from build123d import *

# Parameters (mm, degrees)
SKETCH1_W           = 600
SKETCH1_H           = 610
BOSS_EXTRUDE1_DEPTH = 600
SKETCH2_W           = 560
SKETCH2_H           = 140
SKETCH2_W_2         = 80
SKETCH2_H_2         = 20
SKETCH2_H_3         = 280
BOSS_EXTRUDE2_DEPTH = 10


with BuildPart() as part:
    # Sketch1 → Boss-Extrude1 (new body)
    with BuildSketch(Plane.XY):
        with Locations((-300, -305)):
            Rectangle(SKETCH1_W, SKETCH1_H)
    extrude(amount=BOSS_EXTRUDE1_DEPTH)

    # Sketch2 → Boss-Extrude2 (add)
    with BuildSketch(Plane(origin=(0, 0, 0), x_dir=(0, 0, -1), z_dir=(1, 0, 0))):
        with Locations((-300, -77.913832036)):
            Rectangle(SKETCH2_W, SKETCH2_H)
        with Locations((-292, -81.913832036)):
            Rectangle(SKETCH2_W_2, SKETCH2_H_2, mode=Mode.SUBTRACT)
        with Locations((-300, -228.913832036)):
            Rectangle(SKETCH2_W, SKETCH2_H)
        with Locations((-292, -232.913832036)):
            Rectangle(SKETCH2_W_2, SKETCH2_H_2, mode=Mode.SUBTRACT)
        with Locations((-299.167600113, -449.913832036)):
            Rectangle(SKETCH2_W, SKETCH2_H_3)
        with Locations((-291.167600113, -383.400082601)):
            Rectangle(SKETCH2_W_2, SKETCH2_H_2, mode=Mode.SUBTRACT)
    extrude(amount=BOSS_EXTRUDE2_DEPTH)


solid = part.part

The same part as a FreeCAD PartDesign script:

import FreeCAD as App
import Part
import Sketcher
from FreeCAD import Vector


def add_polygon(sketch, points):
    """Adds a closed chain of lines whose ends are joined by coincident constraints."""
    first, n = sketch.GeometryCount, len(points)
    for a, b in zip(points, points[1:] + points[:1]):
        sketch.addGeometry(Part.LineSegment(App.Vector(*a, 0), App.Vector(*b, 0)), False)
    for i in range(n):
        sketch.addConstraint(Sketcher.Constraint("Coincident", first + i, 2, first + (i + 1) % n, 1))

doc = App.newDocument("Part")
body = doc.addObject("PartDesign::Body", "Body")

sketch1 = body.newObject("Sketcher::SketchObject", "Sketch")
sketch1.AttachmentSupport = (doc.getObject("XY_Plane"), [""])
sketch1.MapMode = "FlatFace"
add_polygon(sketch1, [(-600, 0), (-600, -610), (0, -610), (0, 0)])
sketch1.addConstraint([
    Sketcher.Constraint("Vertical", 0),
    Sketcher.Constraint("Horizontal", 1),
    Sketcher.Constraint("Vertical", 2),
    Sketcher.Constraint("Horizontal", 3),
    Sketcher.Constraint("Coincident", 2, 2, -1, 1),
    Sketcher.Constraint("DistanceX", 1, 1, 1, 2, 600.0),
    Sketcher.Constraint("DistanceY", 0, 2, 0, 1, 610.0),
])
pad1 = body.newObject("PartDesign::Pad", "Pad")
pad1.Profile = sketch1
pad1.Length = 600

sketch2 = body.newObject("Sketcher::SketchObject", "Sketch001")
sketch2.AttachmentSupport = (doc.getObject("YZ_Plane"), [""])
sketch2.MapMode = "FlatFace"
add_polygon(sketch2, [(-7.913832, 580), (-147.913832, 580), (-147.913832, 20), (-7.913832, 20)])
add_polygon(sketch2, [(-91.913832, 252), (-91.913832, 332), (-71.913832, 332), (-71.913832, 252)])
add_polygon(sketch2, [(-158.913832, 580), (-298.913832, 580), (-298.913832, 20), (-158.913832, 20)])
add_polygon(sketch2, [(-242.913832, 252), (-242.913832, 332), (-222.913832, 332), (-222.913832, 252)])
add_polygon(sketch2, [(-309.913832, 579.1676), (-589.913832, 579.1676), (-589.913832, 19.1676), (-309.913832, 19.1676)])
add_polygon(sketch2, [(-393.400083, 251.1676), (-393.400083, 331.1676), (-373.400083, 331.1676), (-373.400083, 251.1676)])
sketch2.addConstraint([
    Sketcher.Constraint("Horizontal", 0),
    Sketcher.Constraint("Vertical", 1),
    Sketcher.Constraint("Horizontal", 2),
    Sketcher.Constraint("Vertical", 3),
    Sketcher.Constraint("Vertical", 4),
    Sketcher.Constraint("Horizontal", 5),
    Sketcher.Constraint("Vertical", 6),
    Sketcher.Constraint("Horizontal", 7),
    Sketcher.Constraint("Horizontal", 8),
    Sketcher.Constraint("Vertical", 9),
    Sketcher.Constraint("Horizontal", 10),
    Sketcher.Constraint("Vertical", 11),
    Sketcher.Constraint("Vertical", 12),
    Sketcher.Constraint("Horizontal", 13),
    Sketcher.Constraint("Vertical", 14),
    Sketcher.Constraint("Horizontal", 15),
    Sketcher.Constraint("Horizontal", 16),
    Sketcher.Constraint("Vertical", 17),
    Sketcher.Constraint("Horizontal", 18),
    Sketcher.Constraint("Vertical", 19),
    Sketcher.Constraint("Vertical", 20),
    Sketcher.Constraint("Horizontal", 21),
    Sketcher.Constraint("Vertical", 22),
    Sketcher.Constraint("Horizontal", 23),
    Sketcher.Constraint("Horizontal", 3, 2, 8, 2),
    Sketcher.Constraint("Horizontal", 2, 2, 9, 2),
    Sketcher.Constraint("Horizontal", 5, 2, 12, 2),
    Sketcher.Constraint("Horizontal", 7, 2, 14, 2),
    Sketcher.Constraint("Equal", 2, 8),
    Sketcher.Constraint("Equal", 7, 13),
    Sketcher.Constraint("Equal", 15, 21),
    Sketcher.Constraint("Equal", 11, 17),
    Sketcher.Constraint("Equal", 14, 20),
    Sketcher.Constraint("DistanceX", 0, 2, 0, 1, 140.0),
    Sketcher.Constraint("DistanceX", 5, 1, 5, 2, 20.0),
    Sketcher.Constraint("DistanceX", 16, 2, 16, 1, 280.0),
    Sketcher.Constraint("DistanceY", 1, 2, 1, 1, 560.0),
    Sketcher.Constraint("DistanceY", 4, 1, 4, 2, 80.0),
    Sketcher.Constraint("DistanceY", -1, 1, 0, 2, 580.0),
    Sketcher.Constraint("DistanceY", -1, 1, 4, 2, 332.0),
    Sketcher.Constraint("DistanceX", 0, 2, 4, 2, 56.0),
    Sketcher.Constraint("DistanceX", 8, 2, 0, 2, 151.0),
    Sketcher.Constraint("DistanceX", 12, 2, 4, 2, 151.0),
    Sketcher.Constraint("DistanceX", 16, 2, 8, 2, 291.0),
    Sketcher.Constraint("DistanceY", 20, 2, 19, 2, 248.0),
    Sketcher.Constraint("DistanceY", -1, 1, 16, 2, 579.1676),
    Sketcher.Constraint("DistanceX", 20, 2, 12, 2, 150.486251),
    Sketcher.Constraint("DistanceX", 0, 2, -1, 1, 147.913832),
])
pad2 = body.newObject("PartDesign::Pad", "Pad001")
pad2.Profile = sketch2
pad2.Length = 10

doc.recompute()
